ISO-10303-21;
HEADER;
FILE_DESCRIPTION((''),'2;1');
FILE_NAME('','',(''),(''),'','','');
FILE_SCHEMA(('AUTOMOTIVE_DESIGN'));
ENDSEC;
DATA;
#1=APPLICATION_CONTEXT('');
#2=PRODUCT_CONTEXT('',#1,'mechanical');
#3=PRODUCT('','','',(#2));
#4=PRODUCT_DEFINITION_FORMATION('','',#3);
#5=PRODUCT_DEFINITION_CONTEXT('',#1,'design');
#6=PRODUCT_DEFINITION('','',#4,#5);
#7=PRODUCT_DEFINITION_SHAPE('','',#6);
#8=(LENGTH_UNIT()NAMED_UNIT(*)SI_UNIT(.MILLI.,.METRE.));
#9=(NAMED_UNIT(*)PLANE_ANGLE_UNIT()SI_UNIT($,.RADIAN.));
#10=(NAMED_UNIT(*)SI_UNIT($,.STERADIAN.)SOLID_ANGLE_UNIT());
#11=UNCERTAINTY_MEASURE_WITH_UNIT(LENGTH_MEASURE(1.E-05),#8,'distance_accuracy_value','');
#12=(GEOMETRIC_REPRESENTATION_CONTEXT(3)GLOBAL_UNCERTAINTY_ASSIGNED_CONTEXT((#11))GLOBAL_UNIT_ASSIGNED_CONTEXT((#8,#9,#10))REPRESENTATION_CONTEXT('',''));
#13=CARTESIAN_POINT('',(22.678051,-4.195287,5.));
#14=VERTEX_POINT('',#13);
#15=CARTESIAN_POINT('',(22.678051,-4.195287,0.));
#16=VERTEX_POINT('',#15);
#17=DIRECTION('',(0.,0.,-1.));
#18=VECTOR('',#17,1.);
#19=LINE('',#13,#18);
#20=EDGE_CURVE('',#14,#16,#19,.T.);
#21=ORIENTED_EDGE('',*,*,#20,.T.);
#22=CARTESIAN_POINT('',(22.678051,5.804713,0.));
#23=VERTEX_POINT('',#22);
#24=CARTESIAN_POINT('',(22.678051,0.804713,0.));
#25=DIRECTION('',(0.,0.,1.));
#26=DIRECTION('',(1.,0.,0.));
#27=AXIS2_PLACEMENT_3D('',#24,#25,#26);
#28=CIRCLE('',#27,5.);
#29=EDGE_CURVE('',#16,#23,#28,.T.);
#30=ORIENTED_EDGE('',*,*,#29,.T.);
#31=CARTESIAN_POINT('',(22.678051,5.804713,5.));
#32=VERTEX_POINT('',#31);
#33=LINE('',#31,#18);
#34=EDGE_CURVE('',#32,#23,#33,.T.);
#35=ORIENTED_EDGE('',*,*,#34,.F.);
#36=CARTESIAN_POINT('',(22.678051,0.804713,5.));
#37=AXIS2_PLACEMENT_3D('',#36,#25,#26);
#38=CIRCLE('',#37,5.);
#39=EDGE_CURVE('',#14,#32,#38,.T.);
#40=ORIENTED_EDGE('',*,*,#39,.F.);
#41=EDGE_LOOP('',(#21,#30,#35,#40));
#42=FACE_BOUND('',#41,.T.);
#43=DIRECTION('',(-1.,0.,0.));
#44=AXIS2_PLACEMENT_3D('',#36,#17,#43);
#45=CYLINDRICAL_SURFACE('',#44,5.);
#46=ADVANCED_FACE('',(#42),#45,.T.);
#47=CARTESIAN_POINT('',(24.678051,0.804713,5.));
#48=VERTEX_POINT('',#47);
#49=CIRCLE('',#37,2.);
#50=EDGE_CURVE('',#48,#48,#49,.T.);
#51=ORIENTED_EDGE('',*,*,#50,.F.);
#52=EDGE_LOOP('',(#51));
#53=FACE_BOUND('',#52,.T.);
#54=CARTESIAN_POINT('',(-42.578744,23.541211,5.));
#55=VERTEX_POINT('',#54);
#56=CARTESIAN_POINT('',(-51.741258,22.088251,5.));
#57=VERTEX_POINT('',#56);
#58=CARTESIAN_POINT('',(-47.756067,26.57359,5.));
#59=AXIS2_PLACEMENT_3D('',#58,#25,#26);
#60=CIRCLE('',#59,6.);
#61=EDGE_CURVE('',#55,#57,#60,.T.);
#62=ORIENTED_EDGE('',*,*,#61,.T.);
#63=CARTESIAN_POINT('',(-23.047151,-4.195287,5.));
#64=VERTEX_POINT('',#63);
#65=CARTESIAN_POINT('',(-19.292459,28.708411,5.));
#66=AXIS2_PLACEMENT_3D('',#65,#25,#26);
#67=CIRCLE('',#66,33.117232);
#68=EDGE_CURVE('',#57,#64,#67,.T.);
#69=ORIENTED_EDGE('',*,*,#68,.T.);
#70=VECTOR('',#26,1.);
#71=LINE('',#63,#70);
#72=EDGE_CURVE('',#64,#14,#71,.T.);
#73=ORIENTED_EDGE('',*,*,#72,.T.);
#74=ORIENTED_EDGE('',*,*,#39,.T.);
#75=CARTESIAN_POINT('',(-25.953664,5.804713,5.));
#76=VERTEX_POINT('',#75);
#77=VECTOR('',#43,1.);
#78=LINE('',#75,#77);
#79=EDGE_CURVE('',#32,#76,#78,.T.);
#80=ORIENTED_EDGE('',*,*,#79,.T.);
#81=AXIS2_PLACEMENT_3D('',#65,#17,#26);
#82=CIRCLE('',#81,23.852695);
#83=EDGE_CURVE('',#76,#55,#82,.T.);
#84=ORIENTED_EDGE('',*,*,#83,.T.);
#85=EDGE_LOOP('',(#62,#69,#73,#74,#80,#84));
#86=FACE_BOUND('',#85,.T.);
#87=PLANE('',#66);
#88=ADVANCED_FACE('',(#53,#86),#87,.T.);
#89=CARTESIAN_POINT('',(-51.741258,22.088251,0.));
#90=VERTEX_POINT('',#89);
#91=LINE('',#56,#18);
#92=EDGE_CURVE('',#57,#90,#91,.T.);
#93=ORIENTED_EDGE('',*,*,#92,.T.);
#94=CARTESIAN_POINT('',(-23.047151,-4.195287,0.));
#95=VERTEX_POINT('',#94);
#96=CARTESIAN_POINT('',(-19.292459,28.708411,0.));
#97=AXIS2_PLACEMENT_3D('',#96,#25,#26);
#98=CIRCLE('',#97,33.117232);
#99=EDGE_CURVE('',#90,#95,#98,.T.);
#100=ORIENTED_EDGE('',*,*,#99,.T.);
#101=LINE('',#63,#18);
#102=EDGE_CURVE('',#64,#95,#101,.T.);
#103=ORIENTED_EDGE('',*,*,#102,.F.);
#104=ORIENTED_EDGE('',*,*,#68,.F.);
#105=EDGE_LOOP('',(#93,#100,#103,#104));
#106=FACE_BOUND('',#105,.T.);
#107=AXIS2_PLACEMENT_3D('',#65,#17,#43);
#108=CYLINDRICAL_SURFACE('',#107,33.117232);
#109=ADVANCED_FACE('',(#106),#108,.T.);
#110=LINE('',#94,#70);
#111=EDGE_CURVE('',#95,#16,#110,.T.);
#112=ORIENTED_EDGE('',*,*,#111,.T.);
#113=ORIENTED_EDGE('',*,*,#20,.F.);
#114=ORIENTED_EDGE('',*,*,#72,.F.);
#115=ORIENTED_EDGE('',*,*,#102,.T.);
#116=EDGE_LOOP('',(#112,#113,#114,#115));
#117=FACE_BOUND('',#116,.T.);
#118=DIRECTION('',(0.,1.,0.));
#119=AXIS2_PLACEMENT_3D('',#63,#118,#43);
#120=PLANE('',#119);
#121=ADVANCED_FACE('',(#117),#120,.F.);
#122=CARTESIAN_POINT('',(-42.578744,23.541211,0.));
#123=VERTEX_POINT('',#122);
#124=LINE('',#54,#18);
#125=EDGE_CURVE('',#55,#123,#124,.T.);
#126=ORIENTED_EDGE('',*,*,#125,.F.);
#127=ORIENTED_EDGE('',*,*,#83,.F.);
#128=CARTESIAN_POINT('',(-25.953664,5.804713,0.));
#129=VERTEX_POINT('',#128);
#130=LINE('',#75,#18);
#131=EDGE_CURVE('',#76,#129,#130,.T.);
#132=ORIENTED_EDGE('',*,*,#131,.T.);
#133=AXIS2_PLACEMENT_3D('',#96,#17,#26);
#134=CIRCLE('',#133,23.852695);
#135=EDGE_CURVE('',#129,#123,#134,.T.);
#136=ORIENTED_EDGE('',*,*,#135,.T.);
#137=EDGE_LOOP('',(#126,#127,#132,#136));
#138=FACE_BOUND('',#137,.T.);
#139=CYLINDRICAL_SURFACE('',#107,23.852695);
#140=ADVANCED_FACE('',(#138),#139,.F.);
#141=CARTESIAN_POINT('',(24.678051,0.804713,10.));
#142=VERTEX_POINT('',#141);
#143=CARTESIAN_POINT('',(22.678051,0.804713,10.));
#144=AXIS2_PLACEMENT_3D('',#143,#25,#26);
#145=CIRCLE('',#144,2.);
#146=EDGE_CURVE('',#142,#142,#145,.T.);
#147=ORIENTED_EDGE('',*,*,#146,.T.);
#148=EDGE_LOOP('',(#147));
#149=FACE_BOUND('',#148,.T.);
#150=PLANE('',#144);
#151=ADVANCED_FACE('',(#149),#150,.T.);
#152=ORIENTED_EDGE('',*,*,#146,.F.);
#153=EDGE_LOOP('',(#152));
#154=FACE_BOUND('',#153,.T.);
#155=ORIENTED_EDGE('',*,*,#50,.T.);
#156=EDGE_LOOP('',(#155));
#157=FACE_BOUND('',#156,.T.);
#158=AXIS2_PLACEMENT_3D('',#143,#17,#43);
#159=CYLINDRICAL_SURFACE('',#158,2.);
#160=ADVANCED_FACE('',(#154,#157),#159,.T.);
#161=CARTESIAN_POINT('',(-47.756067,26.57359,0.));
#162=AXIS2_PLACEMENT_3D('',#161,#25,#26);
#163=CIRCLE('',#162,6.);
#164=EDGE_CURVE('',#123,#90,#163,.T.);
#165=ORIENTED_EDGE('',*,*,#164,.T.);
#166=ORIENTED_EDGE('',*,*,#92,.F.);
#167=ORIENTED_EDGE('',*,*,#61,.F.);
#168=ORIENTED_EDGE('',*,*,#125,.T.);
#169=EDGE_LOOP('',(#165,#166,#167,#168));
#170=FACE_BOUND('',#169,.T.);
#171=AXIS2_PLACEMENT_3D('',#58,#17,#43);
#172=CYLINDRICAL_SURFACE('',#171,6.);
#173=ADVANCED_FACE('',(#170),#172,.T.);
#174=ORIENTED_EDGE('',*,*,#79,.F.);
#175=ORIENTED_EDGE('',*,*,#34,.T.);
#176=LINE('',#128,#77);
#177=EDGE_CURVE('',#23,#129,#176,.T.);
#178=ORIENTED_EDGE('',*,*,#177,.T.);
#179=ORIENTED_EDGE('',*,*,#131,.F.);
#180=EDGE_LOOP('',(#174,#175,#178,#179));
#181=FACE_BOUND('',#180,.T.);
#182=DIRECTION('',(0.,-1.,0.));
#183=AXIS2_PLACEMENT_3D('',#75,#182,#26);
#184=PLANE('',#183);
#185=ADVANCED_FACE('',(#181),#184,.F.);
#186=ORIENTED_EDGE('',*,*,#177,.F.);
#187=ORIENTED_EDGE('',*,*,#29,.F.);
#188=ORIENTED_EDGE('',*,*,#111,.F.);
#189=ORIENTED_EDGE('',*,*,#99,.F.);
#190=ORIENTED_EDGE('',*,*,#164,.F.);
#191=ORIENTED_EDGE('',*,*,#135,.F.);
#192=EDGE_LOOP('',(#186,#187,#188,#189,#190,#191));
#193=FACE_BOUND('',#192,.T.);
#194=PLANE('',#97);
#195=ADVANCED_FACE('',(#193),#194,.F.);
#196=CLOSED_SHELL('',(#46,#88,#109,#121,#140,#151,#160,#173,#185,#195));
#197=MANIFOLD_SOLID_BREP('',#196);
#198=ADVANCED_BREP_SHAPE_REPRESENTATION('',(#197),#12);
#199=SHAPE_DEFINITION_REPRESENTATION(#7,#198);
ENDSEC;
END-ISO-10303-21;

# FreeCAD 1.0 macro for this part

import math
import FreeCAD as App
import Part
import Sketcher
Q = App.Units.Quantity

doc = App.newDocument("Part")
body = doc.addObject("PartDesign::Body", "Body")

# Sketch on XY plane
sketch1 = doc.addObject("Sketcher::SketchObject", "Sketch")
body.addObject(sketch1)
sketch1.AttachmentSupport = (doc.XY_Plane, [""])
sketch1.MapMode = "FlatFace"
sketch1.addGeometry([
    Part.LineSegment(App.Vector(23, 6, 0), App.Vector(-26, 6, 0)),  # 0
    Part.ArcOfCircle(Part.Circle(App.Vector(-19, 29, 0), App.Vector(0, 0, 1), 24), math.radians(-167), math.radians(-106)),  # 1
    Part.ArcOfCircle(Part.Circle(App.Vector(-48, 27, 0), App.Vector(0, 0, 1), 6), math.radians(-30), math.radians(228)),  # 2
    Part.ArcOfCircle(Part.Circle(App.Vector(-19, 29, 0), App.Vector(0, 0, 1), 33), math.radians(-168), math.radians(-97)),  # 3
    Part.LineSegment(App.Vector(-23, -4, 0), App.Vector(23, -4, 0)),  # 4
    Part.ArcOfCircle(Part.Circle(App.Vector(23, 1, 0), App.Vector(0, 0, 1), 5), math.radians(-90), math.radians(90)),  # 5
], False)
sketch1.addConstraint([
    Sketcher.Constraint("Coincident", 0, 2, 1, 2),
    Sketcher.Constraint("Coincident", 1, 1, 2, 1),
    Sketcher.Constraint("Coincident", 2, 2, 3, 1),
    Sketcher.Constraint("Coincident", 3, 2, 4, 1),
    Sketcher.Constraint("Tangent", 4, 2, 5, 1),
    Sketcher.Constraint("Tangent", 5, 2, 0, 1),
    Sketcher.Constraint("Horizontal", 0),
    Sketcher.Constraint("Horizontal", 4),
    Sketcher.Constraint("Coincident", 3, 3, 1, 3),
    Sketcher.Constraint("Radius", 2, Q("6 mm")),
    Sketcher.Constraint("Radius", 5, Q("5 mm")),
    Sketcher.Constraint("Radius", 1, Q("23.852695 mm")),
    Sketcher.Constraint("Radius", 3, Q("33.117232 mm")),
    Sketcher.Constraint("DistanceY", 5, 3, 3, 3, Q("27.903698 mm")),
    Sketcher.Constraint("DistanceY", 1, 1, 1, 3, Q("5.167201 mm")),
    Sketcher.Constraint("DistanceX", 2, 2, 1, 3, Q("32.448799 mm")),
    Sketcher.Constraint("DistanceX", 0, 2, 0, 1, Q("48.631715 mm")),
    Sketcher.Constraint("DistanceX", 1, 3, -1, 1, Q("19.292459 mm")),
    Sketcher.Constraint("DistanceY", -1, 1, 1, 3, Q("28.708411 mm")),
])
pad1 = doc.addObject("PartDesign::Pad", "Pad")
body.addObject(pad1)
pad1.Profile = sketch1
pad1.Length = 5

# Sketch on XY plane
sketch2 = doc.addObject("Sketcher::SketchObject", "Sketch001")
body.addObject(sketch2)
sketch2.AttachmentSupport = (doc.XY_Plane, [""])
sketch2.MapMode = "FlatFace"
sketch2.AttachmentOffset = App.Placement(App.Vector(0, 0, 5), App.Rotation())
sketch2.addGeometry(Part.Circle(App.Vector(22.7, 0.8, 0), App.Vector(0, 0, 1), 2), False)
sketch2.addConstraint([
    Sketcher.Constraint("Diameter", 0, Q("4 mm")),
    Sketcher.Constraint("DistanceX", -1, 1, 0, 3, Q("22.678051 mm")),
    Sketcher.Constraint("DistanceY", -1, 1, 0, 3, Q("0.804713 mm")),
])
pad2 = doc.addObject("PartDesign::Pad", "Pad001")
body.addObject(pad2)
pad2.Profile = sketch2
pad2.Length = 5

doc.recompute()
